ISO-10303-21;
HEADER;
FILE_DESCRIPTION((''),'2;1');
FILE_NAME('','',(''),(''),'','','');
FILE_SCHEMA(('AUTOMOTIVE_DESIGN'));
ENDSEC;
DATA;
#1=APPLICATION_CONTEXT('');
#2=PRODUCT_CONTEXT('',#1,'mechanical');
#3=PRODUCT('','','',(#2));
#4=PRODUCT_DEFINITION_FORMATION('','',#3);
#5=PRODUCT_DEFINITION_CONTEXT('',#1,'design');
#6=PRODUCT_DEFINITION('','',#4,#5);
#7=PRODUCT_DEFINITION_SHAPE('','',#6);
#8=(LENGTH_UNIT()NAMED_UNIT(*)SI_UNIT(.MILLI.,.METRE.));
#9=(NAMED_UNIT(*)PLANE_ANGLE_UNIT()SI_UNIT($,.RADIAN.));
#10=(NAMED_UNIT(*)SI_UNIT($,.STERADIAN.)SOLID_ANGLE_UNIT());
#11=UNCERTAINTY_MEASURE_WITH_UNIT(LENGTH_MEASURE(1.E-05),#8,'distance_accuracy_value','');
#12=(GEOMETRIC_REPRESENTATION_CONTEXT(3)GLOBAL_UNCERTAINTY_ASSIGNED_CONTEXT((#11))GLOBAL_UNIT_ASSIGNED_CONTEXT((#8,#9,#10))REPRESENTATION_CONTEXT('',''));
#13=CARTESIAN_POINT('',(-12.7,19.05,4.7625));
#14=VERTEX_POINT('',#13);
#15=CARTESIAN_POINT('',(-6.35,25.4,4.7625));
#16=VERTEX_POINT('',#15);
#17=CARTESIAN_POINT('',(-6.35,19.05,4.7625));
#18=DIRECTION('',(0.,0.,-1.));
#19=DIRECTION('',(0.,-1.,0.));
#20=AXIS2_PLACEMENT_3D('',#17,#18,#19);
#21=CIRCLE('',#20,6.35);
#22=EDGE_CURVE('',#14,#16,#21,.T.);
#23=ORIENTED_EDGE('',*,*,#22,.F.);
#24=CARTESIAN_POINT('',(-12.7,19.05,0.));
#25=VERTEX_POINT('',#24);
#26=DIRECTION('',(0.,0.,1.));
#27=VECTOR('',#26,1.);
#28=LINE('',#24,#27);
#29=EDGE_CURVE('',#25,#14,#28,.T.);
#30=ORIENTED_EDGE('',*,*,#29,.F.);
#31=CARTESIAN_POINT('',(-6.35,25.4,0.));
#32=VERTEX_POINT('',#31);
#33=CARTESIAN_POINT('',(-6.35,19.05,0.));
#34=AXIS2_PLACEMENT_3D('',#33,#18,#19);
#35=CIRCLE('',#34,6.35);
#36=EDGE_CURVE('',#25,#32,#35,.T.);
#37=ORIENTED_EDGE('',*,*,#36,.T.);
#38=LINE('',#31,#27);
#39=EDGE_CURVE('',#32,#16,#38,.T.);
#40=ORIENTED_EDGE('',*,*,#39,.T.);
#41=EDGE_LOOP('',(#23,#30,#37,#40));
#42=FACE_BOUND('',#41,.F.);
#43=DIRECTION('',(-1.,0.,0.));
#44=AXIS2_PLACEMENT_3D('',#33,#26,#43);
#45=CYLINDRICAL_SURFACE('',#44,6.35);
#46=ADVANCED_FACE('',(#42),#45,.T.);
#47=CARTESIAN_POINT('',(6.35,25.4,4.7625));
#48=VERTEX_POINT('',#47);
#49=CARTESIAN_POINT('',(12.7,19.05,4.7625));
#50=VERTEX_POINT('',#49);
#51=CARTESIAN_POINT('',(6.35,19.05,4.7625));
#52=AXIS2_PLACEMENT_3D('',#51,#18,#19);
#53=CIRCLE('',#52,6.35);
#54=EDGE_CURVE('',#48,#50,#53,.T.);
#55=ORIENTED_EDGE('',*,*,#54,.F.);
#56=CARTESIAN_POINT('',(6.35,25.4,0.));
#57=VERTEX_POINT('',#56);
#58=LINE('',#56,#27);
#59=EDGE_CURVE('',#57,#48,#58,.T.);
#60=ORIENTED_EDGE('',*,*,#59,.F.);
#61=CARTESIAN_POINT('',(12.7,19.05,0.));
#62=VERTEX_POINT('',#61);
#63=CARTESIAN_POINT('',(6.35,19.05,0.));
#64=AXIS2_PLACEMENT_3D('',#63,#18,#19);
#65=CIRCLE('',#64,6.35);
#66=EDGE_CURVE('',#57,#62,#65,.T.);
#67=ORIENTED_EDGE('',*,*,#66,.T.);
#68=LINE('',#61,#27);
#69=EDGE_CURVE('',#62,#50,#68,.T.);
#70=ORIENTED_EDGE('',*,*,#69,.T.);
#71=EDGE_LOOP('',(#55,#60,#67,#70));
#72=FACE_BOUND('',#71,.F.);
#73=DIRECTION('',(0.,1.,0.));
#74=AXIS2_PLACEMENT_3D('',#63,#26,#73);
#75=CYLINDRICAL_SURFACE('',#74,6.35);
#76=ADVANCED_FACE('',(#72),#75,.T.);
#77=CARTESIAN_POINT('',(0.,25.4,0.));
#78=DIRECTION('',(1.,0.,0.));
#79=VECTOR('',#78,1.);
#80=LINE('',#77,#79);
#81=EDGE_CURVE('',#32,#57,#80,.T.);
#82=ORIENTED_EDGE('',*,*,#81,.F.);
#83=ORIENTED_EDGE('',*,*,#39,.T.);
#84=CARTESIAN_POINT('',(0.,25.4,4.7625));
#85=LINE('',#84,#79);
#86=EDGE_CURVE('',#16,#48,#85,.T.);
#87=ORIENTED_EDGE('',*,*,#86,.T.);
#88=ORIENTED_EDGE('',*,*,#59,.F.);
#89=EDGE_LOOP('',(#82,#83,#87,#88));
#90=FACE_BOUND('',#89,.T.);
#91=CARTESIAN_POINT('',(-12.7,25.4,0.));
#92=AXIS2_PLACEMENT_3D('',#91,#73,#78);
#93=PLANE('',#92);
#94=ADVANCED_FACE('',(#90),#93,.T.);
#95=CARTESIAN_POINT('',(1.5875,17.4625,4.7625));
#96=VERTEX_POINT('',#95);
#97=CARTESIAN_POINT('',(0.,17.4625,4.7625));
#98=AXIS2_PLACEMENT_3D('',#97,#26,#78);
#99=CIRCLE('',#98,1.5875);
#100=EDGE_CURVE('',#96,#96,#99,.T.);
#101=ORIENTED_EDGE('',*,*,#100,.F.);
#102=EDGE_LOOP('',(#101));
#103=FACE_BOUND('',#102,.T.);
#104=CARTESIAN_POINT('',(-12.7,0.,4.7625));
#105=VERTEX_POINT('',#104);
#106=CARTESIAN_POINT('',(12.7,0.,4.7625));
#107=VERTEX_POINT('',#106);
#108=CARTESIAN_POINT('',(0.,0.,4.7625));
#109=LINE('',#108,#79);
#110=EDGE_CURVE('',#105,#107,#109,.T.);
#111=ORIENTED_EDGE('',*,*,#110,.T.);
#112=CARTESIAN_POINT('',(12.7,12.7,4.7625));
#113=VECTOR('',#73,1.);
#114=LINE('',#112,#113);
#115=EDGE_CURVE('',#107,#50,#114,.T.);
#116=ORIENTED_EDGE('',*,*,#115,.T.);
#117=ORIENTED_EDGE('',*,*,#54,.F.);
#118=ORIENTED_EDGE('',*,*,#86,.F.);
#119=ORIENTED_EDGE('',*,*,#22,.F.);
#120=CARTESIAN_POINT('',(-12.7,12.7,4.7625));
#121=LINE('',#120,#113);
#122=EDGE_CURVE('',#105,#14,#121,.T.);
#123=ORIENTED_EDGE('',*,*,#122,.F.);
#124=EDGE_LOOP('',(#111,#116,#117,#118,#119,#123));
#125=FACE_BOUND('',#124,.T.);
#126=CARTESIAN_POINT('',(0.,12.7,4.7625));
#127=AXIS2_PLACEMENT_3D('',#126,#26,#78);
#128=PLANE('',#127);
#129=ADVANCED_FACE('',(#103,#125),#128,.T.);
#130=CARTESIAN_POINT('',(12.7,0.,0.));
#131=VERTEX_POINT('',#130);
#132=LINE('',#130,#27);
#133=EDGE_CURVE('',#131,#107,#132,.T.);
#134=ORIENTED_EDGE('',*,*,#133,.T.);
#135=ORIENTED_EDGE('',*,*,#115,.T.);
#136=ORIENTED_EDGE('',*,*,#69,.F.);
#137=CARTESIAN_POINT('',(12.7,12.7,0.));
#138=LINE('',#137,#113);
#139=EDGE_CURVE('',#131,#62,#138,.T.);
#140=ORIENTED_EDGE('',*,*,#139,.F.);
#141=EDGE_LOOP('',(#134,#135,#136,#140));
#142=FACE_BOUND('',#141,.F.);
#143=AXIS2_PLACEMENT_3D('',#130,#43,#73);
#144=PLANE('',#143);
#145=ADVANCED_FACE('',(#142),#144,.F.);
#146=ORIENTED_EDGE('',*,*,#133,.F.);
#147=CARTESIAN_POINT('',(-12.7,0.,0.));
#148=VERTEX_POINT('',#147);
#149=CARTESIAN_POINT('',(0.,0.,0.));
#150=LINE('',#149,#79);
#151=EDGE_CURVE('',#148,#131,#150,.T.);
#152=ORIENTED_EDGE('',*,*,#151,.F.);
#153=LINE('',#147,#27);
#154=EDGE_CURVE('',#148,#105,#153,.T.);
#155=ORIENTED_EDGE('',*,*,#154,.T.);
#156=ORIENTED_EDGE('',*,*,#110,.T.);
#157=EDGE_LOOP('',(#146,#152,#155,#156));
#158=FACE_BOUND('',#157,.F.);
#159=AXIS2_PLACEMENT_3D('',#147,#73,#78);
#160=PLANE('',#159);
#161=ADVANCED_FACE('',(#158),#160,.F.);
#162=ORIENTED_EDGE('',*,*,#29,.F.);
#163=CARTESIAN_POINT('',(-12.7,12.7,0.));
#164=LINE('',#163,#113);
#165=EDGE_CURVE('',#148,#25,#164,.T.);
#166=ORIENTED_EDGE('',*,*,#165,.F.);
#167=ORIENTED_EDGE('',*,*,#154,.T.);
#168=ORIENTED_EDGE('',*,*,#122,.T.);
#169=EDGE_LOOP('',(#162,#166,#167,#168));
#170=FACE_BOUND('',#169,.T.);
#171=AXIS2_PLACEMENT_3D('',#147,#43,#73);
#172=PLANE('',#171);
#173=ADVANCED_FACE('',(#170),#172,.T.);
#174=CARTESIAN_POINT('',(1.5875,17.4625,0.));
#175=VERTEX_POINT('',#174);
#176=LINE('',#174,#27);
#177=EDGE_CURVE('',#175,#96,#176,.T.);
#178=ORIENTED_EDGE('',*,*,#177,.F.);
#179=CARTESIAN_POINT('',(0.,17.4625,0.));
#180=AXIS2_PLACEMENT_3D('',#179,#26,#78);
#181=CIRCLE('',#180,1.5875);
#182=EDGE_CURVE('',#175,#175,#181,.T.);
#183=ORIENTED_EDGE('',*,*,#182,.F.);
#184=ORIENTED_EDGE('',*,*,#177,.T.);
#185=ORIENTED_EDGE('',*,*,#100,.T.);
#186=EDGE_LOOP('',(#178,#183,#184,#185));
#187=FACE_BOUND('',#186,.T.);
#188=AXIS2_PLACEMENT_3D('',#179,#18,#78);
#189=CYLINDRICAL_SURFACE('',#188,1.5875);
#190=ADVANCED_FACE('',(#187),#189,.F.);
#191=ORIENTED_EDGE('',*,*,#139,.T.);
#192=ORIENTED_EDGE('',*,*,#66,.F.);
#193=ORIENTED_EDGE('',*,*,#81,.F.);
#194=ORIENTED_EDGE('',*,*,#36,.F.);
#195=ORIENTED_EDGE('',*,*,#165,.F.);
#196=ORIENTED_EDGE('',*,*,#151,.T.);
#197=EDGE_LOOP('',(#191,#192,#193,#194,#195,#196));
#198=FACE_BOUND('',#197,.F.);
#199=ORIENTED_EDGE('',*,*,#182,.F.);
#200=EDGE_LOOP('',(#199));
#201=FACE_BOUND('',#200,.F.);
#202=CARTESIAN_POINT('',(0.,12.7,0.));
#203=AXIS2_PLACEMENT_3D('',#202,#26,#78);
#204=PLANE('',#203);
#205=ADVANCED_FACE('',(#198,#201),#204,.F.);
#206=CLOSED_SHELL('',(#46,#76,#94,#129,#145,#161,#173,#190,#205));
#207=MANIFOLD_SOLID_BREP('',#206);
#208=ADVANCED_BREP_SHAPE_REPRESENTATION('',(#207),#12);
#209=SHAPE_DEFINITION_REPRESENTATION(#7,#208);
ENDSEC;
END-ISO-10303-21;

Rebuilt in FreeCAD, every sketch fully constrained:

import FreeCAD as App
import Part
import Sketcher
from FreeCAD import Vector
Q = App.Units.Quantity


def edges_at(feature, points):
    """Names of the edges that pass closest to the given points."""
    edges = feature.Shape.Edges
    near = lambda p: min(range(len(edges)), key=lambda i: edges[i].distToShape(Part.Vertex(*p))[0])
    return sorted({f"Edge{near(p) + 1}" for p in points})


def add_polygon(sketch, points):
    """Adds a closed chain of lines whose ends are joined by coincident constraints."""
    first, n = sketch.GeometryCount, len(points)
    for a, b in zip(points, points[1:] + points[:1]):
        sketch.addGeometry(Part.LineSegment(App.Vector(*a, 0), App.Vector(*b, 0)), False)
    for i in range(n):
        sketch.addConstraint(Sketcher.Constraint("Coincident", first + i, 2, first + (i + 1) % n, 1))

doc = App.newDocument("Part")
body = doc.addObject("PartDesign::Body", "Body")

sketch1 = doc.addObject("Sketcher::SketchObject", "Sketch")
body.addObject(sketch1)
sketch1.AttachmentSupport = (doc.XY_Plane, [""])
sketch1.MapMode = "FlatFace"
add_polygon(sketch1, [(-12.7, 25.4), (-12.7, 0), (12.7, 0), (12.7, 25.4)])
sketch1.addGeometry(Part.Circle(Vector(0, 17.4625, 0), Vector(0, 0, 1), 1.5875), False)
sketch1.addConstraint(Sketcher.Constraint("Vertical", 0))
sketch1.addConstraint(Sketcher.Constraint("Horizontal", 1))
sketch1.addConstraint(Sketcher.Constraint("Vertical", 2))
sketch1.addConstraint(Sketcher.Constraint("Horizontal", 3))
sketch1.addConstraint(Sketcher.Constraint("Symmetric", 0, 2, 1, 2, -1, 1))
sketch1.addConstraint(Sketcher.Constraint("PointOnObject", 4, 3, -2))
sketch1.addConstraint(Sketcher.Constraint("Equal", 3, 0))
sketch1.addConstraint(Sketcher.Constraint("DistanceX", 1, 1, 1, 2, Q("1 in")))
sketch1.addConstraint(Sketcher.Constraint("Diameter", 4, Q("0.125 in")))
sketch1.addConstraint(Sketcher.Constraint("DistanceY", -1, 1, 4, 3, Q("0.6875 in")))
pad1 = doc.addObject("PartDesign::Pad", "Pad")
body.addObject(pad1)
pad1.Profile = sketch1
pad1.Length = Q("0.1875 in")
doc.recompute()

fillet = doc.addObject("PartDesign::Fillet", "Fillet")
body.addObject(fillet)
fillet.Base = (pad1, edges_at(pad1, [(-12.7, 25.4, 2.381), (12.7, 25.4, 2.381)]))
fillet.Radius = Q("0.25 in")

doc.recompute()
